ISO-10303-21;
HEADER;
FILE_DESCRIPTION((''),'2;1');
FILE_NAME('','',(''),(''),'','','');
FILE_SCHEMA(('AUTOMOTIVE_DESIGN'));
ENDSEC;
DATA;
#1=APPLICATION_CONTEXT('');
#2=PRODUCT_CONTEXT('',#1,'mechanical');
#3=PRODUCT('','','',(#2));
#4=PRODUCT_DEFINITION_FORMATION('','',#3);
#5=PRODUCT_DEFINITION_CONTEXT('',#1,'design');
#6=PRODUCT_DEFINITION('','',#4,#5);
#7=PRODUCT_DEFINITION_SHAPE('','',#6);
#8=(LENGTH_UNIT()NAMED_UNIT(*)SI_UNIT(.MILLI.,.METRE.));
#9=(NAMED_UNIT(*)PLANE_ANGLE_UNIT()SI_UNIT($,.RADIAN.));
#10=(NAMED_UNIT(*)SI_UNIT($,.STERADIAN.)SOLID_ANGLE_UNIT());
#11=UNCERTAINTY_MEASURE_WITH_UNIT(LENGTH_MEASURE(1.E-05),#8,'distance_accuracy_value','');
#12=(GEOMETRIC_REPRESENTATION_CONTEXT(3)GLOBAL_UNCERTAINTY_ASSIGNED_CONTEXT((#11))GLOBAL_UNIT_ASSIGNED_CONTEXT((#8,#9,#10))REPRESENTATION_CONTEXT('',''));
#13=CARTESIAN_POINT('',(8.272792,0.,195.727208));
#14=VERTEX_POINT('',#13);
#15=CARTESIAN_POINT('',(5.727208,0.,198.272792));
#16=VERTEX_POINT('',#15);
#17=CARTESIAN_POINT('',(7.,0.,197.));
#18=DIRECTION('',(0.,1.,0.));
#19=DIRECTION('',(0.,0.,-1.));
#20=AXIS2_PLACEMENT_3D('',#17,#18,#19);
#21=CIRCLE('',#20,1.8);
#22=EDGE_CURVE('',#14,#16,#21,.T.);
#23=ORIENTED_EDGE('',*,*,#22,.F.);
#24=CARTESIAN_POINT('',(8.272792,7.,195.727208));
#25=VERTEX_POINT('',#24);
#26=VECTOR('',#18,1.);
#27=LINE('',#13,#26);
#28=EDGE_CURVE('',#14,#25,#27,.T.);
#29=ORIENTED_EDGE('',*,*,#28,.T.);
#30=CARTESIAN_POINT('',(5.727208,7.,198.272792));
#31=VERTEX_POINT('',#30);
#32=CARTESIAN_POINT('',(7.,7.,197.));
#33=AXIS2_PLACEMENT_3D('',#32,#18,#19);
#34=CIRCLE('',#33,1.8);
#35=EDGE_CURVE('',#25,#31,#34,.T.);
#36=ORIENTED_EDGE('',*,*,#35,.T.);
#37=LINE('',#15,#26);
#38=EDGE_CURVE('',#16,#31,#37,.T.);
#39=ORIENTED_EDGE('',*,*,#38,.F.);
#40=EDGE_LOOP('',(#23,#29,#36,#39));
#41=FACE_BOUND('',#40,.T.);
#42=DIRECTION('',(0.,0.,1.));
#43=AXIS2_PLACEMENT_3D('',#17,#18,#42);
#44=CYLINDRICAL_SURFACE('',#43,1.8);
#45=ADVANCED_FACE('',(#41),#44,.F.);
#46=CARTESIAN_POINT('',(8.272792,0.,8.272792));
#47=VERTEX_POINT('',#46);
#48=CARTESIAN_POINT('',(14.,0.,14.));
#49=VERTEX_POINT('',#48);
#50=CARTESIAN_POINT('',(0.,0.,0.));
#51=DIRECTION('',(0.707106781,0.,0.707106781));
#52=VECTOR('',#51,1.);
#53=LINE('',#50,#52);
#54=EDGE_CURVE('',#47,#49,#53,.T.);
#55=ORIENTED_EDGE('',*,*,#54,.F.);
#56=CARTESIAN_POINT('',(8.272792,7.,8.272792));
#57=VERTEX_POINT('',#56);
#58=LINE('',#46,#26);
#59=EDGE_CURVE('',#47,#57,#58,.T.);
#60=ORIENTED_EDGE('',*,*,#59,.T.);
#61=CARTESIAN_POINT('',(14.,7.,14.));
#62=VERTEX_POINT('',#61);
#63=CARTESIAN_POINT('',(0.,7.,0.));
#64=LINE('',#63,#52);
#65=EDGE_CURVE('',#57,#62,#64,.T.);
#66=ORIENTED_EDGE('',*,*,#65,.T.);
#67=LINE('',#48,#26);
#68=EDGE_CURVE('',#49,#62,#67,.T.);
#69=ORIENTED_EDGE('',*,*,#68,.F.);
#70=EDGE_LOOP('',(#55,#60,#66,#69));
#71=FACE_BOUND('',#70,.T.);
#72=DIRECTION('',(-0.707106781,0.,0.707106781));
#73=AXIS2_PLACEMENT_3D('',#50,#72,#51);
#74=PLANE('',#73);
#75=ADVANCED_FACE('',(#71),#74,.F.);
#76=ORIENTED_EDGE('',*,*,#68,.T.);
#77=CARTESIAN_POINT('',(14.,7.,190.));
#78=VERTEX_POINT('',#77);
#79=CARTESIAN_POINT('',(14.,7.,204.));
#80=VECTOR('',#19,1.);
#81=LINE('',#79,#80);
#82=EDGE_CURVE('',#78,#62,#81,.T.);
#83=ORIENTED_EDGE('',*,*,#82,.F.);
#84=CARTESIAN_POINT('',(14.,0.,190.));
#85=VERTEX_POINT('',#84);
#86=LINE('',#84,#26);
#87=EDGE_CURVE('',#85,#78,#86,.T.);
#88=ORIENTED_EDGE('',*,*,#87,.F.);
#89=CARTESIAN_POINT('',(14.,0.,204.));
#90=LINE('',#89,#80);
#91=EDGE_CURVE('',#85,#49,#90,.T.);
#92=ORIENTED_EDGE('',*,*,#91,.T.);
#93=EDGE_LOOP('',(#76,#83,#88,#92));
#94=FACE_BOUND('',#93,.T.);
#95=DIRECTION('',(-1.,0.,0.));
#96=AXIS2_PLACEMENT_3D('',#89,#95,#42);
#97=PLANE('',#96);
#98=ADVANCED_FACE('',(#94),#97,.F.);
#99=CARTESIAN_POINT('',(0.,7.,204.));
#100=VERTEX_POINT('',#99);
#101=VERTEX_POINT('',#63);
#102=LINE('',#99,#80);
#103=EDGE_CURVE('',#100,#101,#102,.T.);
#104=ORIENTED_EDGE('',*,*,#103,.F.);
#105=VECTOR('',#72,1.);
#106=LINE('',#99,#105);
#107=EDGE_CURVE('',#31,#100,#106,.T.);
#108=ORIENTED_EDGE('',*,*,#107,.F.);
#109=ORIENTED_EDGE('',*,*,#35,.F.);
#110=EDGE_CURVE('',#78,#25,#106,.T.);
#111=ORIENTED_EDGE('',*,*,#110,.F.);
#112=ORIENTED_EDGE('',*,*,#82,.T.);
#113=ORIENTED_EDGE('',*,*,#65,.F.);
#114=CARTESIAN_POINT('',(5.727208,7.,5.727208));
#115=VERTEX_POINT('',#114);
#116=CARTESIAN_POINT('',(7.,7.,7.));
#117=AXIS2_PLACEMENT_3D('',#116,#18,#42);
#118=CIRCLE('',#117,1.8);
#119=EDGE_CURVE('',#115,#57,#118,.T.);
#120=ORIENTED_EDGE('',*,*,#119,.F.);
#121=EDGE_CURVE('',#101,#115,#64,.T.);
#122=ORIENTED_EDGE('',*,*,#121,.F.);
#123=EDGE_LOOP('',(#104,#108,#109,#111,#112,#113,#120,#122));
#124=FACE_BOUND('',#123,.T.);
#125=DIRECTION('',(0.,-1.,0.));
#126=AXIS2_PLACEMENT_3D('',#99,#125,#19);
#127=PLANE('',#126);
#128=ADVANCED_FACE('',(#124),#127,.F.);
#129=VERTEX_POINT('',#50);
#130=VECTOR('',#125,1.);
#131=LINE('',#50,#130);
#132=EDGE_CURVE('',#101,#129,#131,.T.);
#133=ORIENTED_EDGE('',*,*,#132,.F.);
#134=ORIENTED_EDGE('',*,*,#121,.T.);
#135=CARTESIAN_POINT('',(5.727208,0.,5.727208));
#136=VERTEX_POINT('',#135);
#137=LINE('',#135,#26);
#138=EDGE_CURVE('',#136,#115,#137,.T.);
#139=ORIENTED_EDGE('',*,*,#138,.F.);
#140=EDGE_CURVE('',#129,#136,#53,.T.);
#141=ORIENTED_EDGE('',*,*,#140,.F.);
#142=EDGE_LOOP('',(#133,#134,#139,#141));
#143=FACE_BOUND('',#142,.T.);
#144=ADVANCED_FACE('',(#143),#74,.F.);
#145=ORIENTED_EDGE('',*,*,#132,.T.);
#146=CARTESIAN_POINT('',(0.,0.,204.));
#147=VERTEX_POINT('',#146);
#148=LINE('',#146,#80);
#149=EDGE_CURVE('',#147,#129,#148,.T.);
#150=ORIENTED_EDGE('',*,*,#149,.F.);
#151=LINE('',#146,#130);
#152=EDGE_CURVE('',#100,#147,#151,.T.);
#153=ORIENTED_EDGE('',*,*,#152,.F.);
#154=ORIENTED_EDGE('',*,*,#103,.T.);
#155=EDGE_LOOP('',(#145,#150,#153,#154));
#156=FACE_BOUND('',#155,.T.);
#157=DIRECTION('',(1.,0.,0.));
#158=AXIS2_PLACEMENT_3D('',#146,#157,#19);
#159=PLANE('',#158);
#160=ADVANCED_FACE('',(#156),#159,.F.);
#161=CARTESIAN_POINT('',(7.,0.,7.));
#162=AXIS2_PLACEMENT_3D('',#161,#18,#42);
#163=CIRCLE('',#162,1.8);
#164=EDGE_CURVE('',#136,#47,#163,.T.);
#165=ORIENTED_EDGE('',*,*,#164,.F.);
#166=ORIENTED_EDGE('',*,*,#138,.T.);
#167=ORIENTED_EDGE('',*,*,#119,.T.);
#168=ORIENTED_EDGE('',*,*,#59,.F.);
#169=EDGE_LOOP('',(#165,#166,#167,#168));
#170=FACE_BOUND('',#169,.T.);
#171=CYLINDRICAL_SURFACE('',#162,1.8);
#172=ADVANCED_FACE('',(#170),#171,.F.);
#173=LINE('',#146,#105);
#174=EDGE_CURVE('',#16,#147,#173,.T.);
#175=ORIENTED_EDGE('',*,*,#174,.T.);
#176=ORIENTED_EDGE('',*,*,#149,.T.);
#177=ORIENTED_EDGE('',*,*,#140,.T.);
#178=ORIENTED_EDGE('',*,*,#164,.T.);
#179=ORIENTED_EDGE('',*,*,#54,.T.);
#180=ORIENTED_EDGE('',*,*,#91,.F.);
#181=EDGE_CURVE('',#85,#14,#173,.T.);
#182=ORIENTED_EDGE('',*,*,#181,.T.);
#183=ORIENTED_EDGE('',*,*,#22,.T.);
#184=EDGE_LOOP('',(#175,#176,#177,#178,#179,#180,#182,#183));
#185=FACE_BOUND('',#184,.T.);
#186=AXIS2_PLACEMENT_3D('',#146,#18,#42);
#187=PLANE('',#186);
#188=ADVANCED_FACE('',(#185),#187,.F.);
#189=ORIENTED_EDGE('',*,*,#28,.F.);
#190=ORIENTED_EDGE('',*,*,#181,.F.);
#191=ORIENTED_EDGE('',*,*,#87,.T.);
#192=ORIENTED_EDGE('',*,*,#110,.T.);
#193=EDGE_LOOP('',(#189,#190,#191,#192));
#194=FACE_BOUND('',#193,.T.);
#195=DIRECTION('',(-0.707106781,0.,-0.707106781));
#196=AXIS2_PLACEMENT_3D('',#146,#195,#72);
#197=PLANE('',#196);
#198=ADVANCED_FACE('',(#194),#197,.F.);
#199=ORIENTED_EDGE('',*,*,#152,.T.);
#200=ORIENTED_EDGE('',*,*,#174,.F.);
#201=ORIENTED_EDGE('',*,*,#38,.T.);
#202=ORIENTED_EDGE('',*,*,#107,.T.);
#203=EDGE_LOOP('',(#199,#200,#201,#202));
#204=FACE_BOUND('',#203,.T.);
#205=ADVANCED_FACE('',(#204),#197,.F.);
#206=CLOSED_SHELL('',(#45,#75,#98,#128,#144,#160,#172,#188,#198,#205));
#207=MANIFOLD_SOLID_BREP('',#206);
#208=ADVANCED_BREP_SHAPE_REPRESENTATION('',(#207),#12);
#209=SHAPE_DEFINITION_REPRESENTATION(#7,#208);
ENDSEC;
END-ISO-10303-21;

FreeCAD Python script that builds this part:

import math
import FreeCAD as App
import Part
import Sketcher

doc = App.newDocument("Part")
body = doc.addObject("PartDesign::Body", "Body")

sketch1 = body.newObject("Sketcher::SketchObject", "Sketch")
sketch1.AttachmentSupport = (doc.getObject("XY_Plane"), [""])
sketch1.MapMode = "FlatFace"
sketch1.addGeometry([
    Part.LineSegment(App.Vector(0, 7, 0), App.Vector(0, 0, 0)),
    Part.LineSegment(App.Vector(0, 0, 0), App.Vector(14, 0, 0)),
    Part.LineSegment(App.Vector(14, 0, 0), App.Vector(14, 7, 0)),
    Part.LineSegment(App.Vector(14, 7, 0), App.Vector(0, 7, 0)),
], False)
sketch1.addConstraint([
    Sketcher.Constraint("Coincident", 0, 2, 1, 1),
    Sketcher.Constraint("Coincident", 1, 2, 2, 1),
    Sketcher.Constraint("Coincident", 2, 2, 3, 1),
    Sketcher.Constraint("Coincident", 3, 2, 0, 1),
    Sketcher.Constraint("Vertical", 0),
    Sketcher.Constraint("Horizontal", 1),
    Sketcher.Constraint("Vertical", 2),
    Sketcher.Constraint("Horizontal", 3),
    Sketcher.Constraint("Coincident", 0, 2, -1, 1),
    Sketcher.Constraint("DistanceX", 1, 1, 1, 2, 14.0),
    Sketcher.Constraint("DistanceY", 0, 2, 0, 1, 7.0),
])
pad1 = body.newObject("PartDesign::Pad", "Pad")
pad1.Profile = sketch1
pad1.Length = 204

sketch2 = body.newObject("Sketcher::SketchObject", "Sketch001")
sketch2.AttachmentSupport = (doc.getObject("XZ_Plane"), [""])
sketch2.MapMode = "FlatFace"
sketch2.AttachmentOffset = App.Placement(App.Vector(0, 0, -7), App.Rotation())
sketch2.addGeometry([
    Part.LineSegment(App.Vector(0, 0, 0), App.Vector(14, 14, 0)),
    Part.LineSegment(App.Vector(14, 14, 0), App.Vector(14, 0, 0)),
    Part.LineSegment(App.Vector(14, 0, 0), App.Vector(0, 0, 0)),
    Part.LineSegment(App.Vector(0, 204, 0), App.Vector(14, 204, 0)),
    Part.LineSegment(App.Vector(14, 204, 0), App.Vector(14, 190, 0)),
    Part.LineSegment(App.Vector(14, 190, 0), App.Vector(0, 204, 0)),
], False)
sketch2.addConstraint([
    Sketcher.Constraint("Coincident", 0, 2, 1, 1),
    Sketcher.Constraint("Coincident", 1, 2, 2, 1),
    Sketcher.Constraint("Coincident", 2, 2, 0, 1),
    Sketcher.Constraint("Coincident", 3, 2, 4, 1),
    Sketcher.Constraint("Coincident", 4, 2, 5, 1),
    Sketcher.Constraint("Coincident", 5, 2, 3, 1),
    Sketcher.Constraint("Vertical", 1),
    Sketcher.Constraint("Horizontal", 2),
    Sketcher.Constraint("Horizontal", 3),
    Sketcher.Constraint("Vertical", 4),
    Sketcher.Constraint("Coincident", 2, 2, -1, 1),
    Sketcher.Constraint("PointOnObject", 5, 2, -2),
    Sketcher.Constraint("Perpendicular", 0, 5),
    Sketcher.Constraint("Vertical", 1, 2, 3, 2),
    Sketcher.Constraint("Equal", 3, 1),
    Sketcher.Constraint("DistanceX", 2, 2, 2, 1, 14.0),
    Sketcher.Constraint("DistanceY", -1, 1, 3, 2, 204.0),
])
pocket1 = body.newObject("PartDesign::Pocket", "Pocket")
pocket1.Profile = sketch2
pocket1.Type = "ThroughAll"
pocket1.Reversed = True

sketch3 = body.newObject("Sketcher::SketchObject", "Sketch002")
sketch3.AttachmentSupport = (doc.getObject("XZ_Plane"), [""])
sketch3.MapMode = "FlatFace"
sketch3.AttachmentOffset = App.Placement(App.Vector(0, 0, -7), App.Rotation())
sketch3.addGeometry([
    Part.LineSegment(App.Vector(5.7, 198.3, 0), App.Vector(8.3, 195.7, 0)),
    Part.ArcOfCircle(Part.Circle(App.Vector(7, 197, 0), App.Vector(0, 0, 1), 1.8), math.radians(135), math.radians(315)),
    Part.LineSegment(App.Vector(8.3, 8.3, 0), App.Vector(5.7, 5.7, 0)),
    Part.ArcOfCircle(Part.Circle(App.Vector(7, 7, 0), App.Vector(0, 0, 1), 1.8), math.radians(45), math.radians(225)),
], False)
sketch3.addConstraint([
    Sketcher.Constraint("Coincident", 0, 1, 1, 1),
    Sketcher.Constraint("Coincident", 1, 2, 0, 2),
    Sketcher.Constraint("Coincident", 2, 1, 3, 1),
    Sketcher.Constraint("Coincident", 3, 2, 2, 2),
    Sketcher.Constraint("Equal", 1, 3),
    Sketcher.Constraint("Perpendicular", 0, 2),
    Sketcher.Constraint("Vertical", 1, 3, 3, 3),
    Sketcher.Constraint("Vertical", 1, 2, 2, 1),
    Sketcher.Constraint("Vertical", 0, 1, 3, 2),
    Sketcher.Constraint("Radius", 1, 1.8),
    Sketcher.Constraint("DistanceX", -1, 1, 1, 3, 7.0),
    Sketcher.Constraint("DistanceY", -1, 1, 1, 3, 197.0),
    Sketcher.Constraint("DistanceY", -1, 1, 3, 3, 7.0),
    Sketcher.Constraint("DistanceY", 2, 1, 0, 1, 190.0),
])
pocket2 = body.newObject("PartDesign::Pocket", "Pocket001")
pocket2.Profile = sketch3
pocket2.Type = "ThroughAll"
pocket2.Reversed = True

doc.recompute()
